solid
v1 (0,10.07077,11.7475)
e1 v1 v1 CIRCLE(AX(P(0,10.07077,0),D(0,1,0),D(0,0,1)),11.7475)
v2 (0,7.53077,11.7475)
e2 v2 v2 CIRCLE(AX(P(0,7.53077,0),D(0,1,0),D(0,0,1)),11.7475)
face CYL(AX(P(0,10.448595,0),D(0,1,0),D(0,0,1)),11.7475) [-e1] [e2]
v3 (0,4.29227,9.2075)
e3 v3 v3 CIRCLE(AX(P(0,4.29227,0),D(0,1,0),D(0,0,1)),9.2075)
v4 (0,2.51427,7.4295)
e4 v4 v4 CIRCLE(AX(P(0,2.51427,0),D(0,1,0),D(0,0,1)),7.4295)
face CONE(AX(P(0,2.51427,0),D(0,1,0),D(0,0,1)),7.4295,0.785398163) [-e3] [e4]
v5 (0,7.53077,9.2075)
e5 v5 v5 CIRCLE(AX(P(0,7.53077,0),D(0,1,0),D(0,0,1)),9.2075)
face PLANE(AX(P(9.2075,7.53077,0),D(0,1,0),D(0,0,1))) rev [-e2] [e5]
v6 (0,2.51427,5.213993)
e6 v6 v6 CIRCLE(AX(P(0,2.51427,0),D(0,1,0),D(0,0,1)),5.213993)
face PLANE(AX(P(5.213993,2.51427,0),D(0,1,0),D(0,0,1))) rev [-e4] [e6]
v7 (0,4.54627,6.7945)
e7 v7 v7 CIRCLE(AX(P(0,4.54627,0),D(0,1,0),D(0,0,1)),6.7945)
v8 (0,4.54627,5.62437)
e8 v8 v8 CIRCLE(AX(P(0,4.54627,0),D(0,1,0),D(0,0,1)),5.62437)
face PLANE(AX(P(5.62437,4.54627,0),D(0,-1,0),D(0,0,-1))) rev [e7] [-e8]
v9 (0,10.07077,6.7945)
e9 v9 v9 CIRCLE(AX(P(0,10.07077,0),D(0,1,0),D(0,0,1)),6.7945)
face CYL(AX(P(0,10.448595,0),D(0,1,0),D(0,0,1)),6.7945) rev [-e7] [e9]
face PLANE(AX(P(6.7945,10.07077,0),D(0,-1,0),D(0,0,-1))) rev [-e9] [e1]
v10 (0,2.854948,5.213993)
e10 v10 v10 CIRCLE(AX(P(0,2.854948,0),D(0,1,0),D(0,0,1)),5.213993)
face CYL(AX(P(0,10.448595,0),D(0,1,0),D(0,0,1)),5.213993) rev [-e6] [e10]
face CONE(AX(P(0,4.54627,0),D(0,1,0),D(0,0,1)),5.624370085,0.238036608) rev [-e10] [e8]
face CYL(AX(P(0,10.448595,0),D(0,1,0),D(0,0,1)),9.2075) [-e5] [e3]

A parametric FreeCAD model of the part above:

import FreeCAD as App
import Part
import Sketcher

V = App.Vector
Q = App.Units.Quantity


def add_polygon(sketch, points):
    """Adds a closed chain of lines whose ends are joined by coincident constraints."""
    first, n = sketch.GeometryCount, len(points)
    for a, b in zip(points, points[1:] + points[:1]):
        sketch.addGeometry(Part.LineSegment(App.Vector(*a, 0), App.Vector(*b, 0)), False)
    for i in range(n):
        sketch.addConstraint(Sketcher.Constraint("Coincident", first + i, 2, first + (i + 1) % n, 1))

doc = App.newDocument("Part")
body = doc.addObject("PartDesign::Body", "Body")

# Sketch on XY plane
sketch1 = body.newObject("Sketcher::SketchObject", "Sketch")
sketch1.AttachmentSupport = (doc.getObject("XY_Plane"), [""])
sketch1.MapMode = "FlatFace"
add_polygon(sketch1, [(9.21, 4.29), (9.21, 7.53), (11.75, 7.53), (11.75, 10.07), (6.79, 10.07), (6.79, 4.55), (5.62, 4.55), (5.21, 2.85), (5.21, 2.51), (7.43, 2.51)])  # lines 0-9
sketch1.addConstraint([
    Sketcher.Constraint("Vertical", 0),
    Sketcher.Constraint("Horizontal", 1),
    Sketcher.Constraint("Vertical", 2),
    Sketcher.Constraint("Horizontal", 3),
    Sketcher.Constraint("Vertical", 4),
    Sketcher.Constraint("Horizontal", 5),
    Sketcher.Constraint("Vertical", 7),
    Sketcher.Constraint("Horizontal", 8),
    Sketcher.Constraint("Equal", 1, 2),
    Sketcher.Constraint("DistanceX", 1, 1, 1, 2, Q("0.1 in")),
    Sketcher.Constraint("Angle", 9, Q("45 deg")),
    Sketcher.Constraint("DistanceX", 3, 2, 3, 1, Q("0.195 in")),
    Sketcher.Constraint("DistanceY", 7, 2, 5, 2, Q("0.08 in")),
    Sketcher.Constraint("DistanceX", 8, 2, 0, 2, Q("0.07 in")),
    Sketcher.Constraint("DistanceY", 0, 1, 0, 2, Q("0.1275 in")),
    Sketcher.Constraint("DistanceX", -1, 1, 0, 2, Q("0.3625 in")),
    Sketcher.Constraint("DistanceX", 5, 2, 5, 1, Q("1.17013 mm")),
    Sketcher.Constraint("DistanceX", 8, 1, 8, 2, Q("2.215507 mm")),
    Sketcher.Constraint("DistanceY", 7, 2, 7, 1, Q("0.340678 mm")),
    Sketcher.Constraint("DistanceY", -1, 1, 0, 2, Q("7.53077 mm")),
])
revolution = body.newObject("PartDesign::Revolution", "Revolution")
revolution.Profile = sketch1
revolution.ReferenceAxis = (sketch1, ["V_Axis"])
revolution.Angle = 360

doc.recompute()
